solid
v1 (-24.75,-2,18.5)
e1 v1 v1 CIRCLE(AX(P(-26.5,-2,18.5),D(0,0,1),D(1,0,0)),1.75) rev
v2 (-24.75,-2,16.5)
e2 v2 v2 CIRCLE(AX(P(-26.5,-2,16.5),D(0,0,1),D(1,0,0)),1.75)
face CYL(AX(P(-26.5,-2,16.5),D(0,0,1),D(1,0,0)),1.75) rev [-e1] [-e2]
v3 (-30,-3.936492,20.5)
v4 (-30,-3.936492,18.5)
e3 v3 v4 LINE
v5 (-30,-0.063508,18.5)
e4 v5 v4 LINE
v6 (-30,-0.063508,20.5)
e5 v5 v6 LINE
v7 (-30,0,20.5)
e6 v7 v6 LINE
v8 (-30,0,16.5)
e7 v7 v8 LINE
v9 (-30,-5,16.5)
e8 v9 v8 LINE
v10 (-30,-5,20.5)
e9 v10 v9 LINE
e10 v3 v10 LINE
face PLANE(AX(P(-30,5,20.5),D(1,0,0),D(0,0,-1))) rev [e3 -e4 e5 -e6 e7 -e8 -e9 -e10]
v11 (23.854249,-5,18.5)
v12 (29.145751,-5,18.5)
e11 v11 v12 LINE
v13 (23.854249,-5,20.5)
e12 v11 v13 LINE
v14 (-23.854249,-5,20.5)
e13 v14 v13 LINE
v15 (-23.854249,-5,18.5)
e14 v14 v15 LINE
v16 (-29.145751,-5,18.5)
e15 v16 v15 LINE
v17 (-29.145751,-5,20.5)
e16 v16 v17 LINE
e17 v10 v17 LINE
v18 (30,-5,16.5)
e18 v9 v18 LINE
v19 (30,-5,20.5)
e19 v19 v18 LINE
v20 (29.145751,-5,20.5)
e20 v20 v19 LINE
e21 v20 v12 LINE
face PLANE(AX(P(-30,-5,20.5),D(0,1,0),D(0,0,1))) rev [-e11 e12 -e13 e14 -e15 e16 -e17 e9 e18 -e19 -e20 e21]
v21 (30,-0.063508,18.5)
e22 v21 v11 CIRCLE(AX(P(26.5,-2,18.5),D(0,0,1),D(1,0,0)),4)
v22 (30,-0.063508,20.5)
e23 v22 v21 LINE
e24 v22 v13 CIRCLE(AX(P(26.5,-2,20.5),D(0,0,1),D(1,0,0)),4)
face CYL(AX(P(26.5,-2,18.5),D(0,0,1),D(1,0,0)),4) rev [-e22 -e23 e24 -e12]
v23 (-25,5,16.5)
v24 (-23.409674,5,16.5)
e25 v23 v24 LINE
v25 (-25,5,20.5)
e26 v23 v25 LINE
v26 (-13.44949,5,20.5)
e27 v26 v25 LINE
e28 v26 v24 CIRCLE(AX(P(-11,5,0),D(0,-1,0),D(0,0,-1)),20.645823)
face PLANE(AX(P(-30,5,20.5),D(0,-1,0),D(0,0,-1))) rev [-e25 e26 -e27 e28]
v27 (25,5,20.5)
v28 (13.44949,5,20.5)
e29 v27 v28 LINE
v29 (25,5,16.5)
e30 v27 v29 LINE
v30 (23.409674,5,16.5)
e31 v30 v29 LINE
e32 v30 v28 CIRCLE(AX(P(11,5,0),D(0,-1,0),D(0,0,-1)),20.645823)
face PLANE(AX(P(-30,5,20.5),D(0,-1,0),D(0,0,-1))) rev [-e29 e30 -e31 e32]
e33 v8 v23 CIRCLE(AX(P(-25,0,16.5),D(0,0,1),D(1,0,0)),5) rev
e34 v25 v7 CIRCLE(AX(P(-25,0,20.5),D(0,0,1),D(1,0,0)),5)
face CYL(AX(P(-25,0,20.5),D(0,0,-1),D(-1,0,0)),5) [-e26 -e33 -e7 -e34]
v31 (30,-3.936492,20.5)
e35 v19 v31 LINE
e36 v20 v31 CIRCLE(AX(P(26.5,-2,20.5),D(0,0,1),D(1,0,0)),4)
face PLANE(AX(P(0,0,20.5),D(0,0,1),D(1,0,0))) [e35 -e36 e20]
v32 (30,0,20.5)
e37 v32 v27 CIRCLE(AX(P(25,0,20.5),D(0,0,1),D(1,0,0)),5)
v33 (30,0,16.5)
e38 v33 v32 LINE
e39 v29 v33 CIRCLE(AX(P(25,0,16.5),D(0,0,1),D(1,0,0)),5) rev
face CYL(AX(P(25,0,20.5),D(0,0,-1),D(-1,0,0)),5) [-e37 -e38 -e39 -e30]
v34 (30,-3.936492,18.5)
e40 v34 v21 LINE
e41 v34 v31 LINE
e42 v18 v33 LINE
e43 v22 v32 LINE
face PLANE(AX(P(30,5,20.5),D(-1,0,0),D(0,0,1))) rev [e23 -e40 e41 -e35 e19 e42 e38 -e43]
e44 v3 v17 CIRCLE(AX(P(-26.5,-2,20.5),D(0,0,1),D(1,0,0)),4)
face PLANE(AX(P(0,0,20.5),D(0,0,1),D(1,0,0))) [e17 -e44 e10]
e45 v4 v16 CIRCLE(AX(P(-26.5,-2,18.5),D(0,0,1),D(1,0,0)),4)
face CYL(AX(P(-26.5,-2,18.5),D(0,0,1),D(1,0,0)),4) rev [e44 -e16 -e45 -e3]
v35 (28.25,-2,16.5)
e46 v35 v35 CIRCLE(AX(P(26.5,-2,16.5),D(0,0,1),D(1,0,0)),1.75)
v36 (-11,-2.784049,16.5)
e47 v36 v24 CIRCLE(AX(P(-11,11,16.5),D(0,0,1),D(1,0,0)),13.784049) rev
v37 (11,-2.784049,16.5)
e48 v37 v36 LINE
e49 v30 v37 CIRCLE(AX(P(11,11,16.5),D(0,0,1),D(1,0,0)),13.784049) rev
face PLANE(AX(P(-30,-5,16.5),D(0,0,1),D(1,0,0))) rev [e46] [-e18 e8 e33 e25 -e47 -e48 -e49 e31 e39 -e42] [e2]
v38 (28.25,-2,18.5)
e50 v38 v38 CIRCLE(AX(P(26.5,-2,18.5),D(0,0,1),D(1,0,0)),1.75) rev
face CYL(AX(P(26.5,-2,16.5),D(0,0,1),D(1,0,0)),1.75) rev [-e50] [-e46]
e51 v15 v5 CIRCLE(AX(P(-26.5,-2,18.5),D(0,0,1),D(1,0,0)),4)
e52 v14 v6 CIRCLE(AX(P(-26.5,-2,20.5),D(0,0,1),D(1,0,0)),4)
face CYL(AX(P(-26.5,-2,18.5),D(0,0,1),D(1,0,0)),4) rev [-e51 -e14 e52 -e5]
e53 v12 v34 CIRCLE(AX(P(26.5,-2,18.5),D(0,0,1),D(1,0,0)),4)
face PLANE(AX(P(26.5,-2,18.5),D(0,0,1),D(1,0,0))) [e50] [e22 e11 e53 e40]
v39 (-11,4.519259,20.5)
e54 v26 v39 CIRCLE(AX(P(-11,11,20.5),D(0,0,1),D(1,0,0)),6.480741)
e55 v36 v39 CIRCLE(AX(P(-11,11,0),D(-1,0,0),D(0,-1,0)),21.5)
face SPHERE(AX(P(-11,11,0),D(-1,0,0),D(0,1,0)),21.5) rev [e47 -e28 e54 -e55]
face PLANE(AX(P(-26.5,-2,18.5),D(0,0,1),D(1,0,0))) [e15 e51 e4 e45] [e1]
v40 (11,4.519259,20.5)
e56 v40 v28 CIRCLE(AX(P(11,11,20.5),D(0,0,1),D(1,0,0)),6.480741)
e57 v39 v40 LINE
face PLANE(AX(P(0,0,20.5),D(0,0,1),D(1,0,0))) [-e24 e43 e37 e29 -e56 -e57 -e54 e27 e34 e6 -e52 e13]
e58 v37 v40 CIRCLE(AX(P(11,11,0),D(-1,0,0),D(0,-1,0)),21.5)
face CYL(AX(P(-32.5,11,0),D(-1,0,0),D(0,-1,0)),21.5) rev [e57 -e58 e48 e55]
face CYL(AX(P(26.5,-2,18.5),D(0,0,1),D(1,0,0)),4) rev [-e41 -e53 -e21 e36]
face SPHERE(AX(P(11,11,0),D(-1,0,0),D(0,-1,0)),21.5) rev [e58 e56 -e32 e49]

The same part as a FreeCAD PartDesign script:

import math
import FreeCAD as App
import Part
import Sketcher

V = App.Vector


def edges_at(feature, points):
    """Names of the edges that pass closest to the given points."""
    edges = feature.Shape.Edges
    near = lambda p: min(range(len(edges)), key=lambda i: edges[i].distToShape(Part.Vertex(*p))[0])
    return sorted({f"Edge{near(p) + 1}" for p in points})


def add_polygon(sketch, points):
    """Adds a closed chain of lines whose ends are joined by coincident constraints."""
    first, n = sketch.GeometryCount, len(points)
    for a, b in zip(points, points[1:] + points[:1]):
        sketch.addGeometry(Part.LineSegment(App.Vector(*a, 0), App.Vector(*b, 0)), False)
    for i in range(n):
        sketch.addConstraint(Sketcher.Constraint("Coincident", first + i, 2, first + (i + 1) % n, 1))

doc = App.newDocument("Part")
params = doc.addObject("Spreadsheet::Sheet", "Params")
for row, (alias, value) in enumerate([
    ("sketch1_width", "60 mm"),
    ("sketch1_height", "10 mm"),
    ("pad1_length", "41 mm"),
    ("sketch2_radius", "21.5 mm"),
    ("sketch2_width", "65 mm"),
    ("groove_angle", "360 deg"),
    ("sketch3_width", "60 mm"),
    ("sketch3_height", "37 mm"),
    ("fillet_radius", "5 mm"),
    ("sketch4_diameter", "3.5 mm"),
    ("sketch5_diameter", "8 mm"),
    ("pocket3_length", "2 mm"),
], start=1):
    params.set(f"A{row}", alias)
    params.set(f"B{row}", "=" + value)
    params.setAlias(f"B{row}", alias)

body = doc.addObject("PartDesign::Body", "Body")

# Sketch on XY plane
sketch1 = body.newObject("Sketcher::SketchObject", "Sketch")
sketch1.AttachmentSupport = (doc.getObject("XY_Plane"), [""])
sketch1.MapMode = "FlatFace"
add_polygon(sketch1, [(-30, 5), (-30, -5), (30, -5), (30, 5)])  # lines 0-3
sketch1.addConstraint(Sketcher.Constraint("Vertical", 0))
sketch1.addConstraint(Sketcher.Constraint("Horizontal", 1))
sketch1.addConstraint(Sketcher.Constraint("Vertical", 2))
sketch1.addConstraint(Sketcher.Constraint("Horizontal", 3))
sketch1.addConstraint(Sketcher.Constraint("Symmetric", 0, 2, 2, 2, -1, 1))
sketch1.addConstraint(Sketcher.Constraint("DistanceX", 1, 1, 1, 2, 60.0))
sketch1.addConstraint(Sketcher.Constraint("DistanceY", 0, 2, 0, 1, 10.0))
sketch1.setExpression("Constraints[9]", "Params.sketch1_width")
sketch1.setExpression("Constraints[10]", "Params.sketch1_height")
pad1 = body.newObject("PartDesign::Pad", "Pad")
pad1.Profile = sketch1
pad1.setExpression("Length", "Params.pad1_length")
pad1.Midplane = True

# Sketch on XY plane
sketch2 = body.newObject("Sketcher::SketchObject", "Sketch001")
sketch2.AttachmentSupport = (doc.getObject("XY_Plane"), [""])
sketch2.MapMode = "FlatFace"
sketch2.addGeometry(Part.LineSegment(V(32, 11, 0), V(-32, 11, 0)), False)
sketch2.addGeometry(Part.ArcOfCircle(Part.Circle(V(-11, 11, 0), V(0, 0, 1), 21), math.radians(180), math.radians(270)), False)
sketch2.addGeometry(Part.LineSegment(V(-11, -10, 0), V(11, -10, 0)), False)
sketch2.addGeometry(Part.ArcOfCircle(Part.Circle(V(11, 11, 0), V(0, 0, 1), 21), math.radians(-90), math.radians(0)), False)
sketch2.addGeometry(Part.LineSegment(V(-32, 11, 0), V(32, 11, 0)), True)  # axis
sketch2.addConstraint(Sketcher.Constraint("Coincident", 0, 2, 1, 1))
sketch2.addConstraint(Sketcher.Constraint("Tangent", 1, 2, 2, 1))
sketch2.addConstraint(Sketcher.Constraint("Tangent", 2, 2, 3, 1))
sketch2.addConstraint(Sketcher.Constraint("Coincident", 3, 2, 0, 1))
sketch2.addConstraint(Sketcher.Constraint("Horizontal", 0))
sketch2.addConstraint(Sketcher.Constraint("Horizontal", 2))
sketch2.addConstraint(Sketcher.Constraint("Horizontal", 4))
sketch2.addConstraint(Sketcher.Constraint("Coincident", 4, 1, 0, 2))
sketch2.addConstraint(Sketcher.Constraint("Equal", 1, 3))
sketch2.addConstraint(Sketcher.Constraint("Horizontal", 3, 3, 0, 2))
sketch2.addConstraint(Sketcher.Constraint("Equal", 0, 4))
sketch2.addConstraint(Sketcher.Constraint("Radius", 1, 21.5))
sketch2.addConstraint(Sketcher.Constraint("DistanceX", 0, 2, 0, 1, 65.0))
sketch2.addConstraint(Sketcher.Constraint("DistanceX", 1, 3, -1, 1, 11.0))
sketch2.addConstraint(Sketcher.Constraint("DistanceY", -1, 1, 1, 3, 11.0))
sketch2.setExpression("Constraints[11]", "Params.sketch2_radius")
sketch2.setExpression("Constraints[12]", "Params.sketch2_width")
groove = body.newObject("PartDesign::Groove", "Groove")
groove.Profile = sketch2
groove.ReferenceAxis = (sketch2, ["Axis0"])
groove.setExpression("Angle", "Params.groove_angle")

# Sketch on XZ plane
sketch3 = body.newObject("Sketcher::SketchObject", "Sketch002")
sketch3.AttachmentSupport = (doc.getObject("XZ_Plane"), [""])
sketch3.MapMode = "FlatFace"
sketch3.AttachmentOffset = App.Placement(V(0, 0, -5), App.Rotation())
add_polygon(sketch3, [(-30, -20), (-30, 16), (30, 16), (30, -20)])  # lines 0-3
sketch3.addConstraint(Sketcher.Constraint("Vertical", 0))
sketch3.addConstraint(Sketcher.Constraint("Horizontal", 1))
sketch3.addConstraint(Sketcher.Constraint("Vertical", 2))
sketch3.addConstraint(Sketcher.Constraint("Horizontal", 3))
sketch3.addConstraint(Sketcher.Constraint("DistanceX", 1, 1, 1, 2, 60.0))
sketch3.addConstraint(Sketcher.Constraint("DistanceY", 0, 1, 0, 2, 37.0))
sketch3.addConstraint(Sketcher.Constraint("DistanceX", 0, 2, -1, 1, 30.0))
sketch3.addConstraint(Sketcher.Constraint("DistanceY", -1, 1, 0, 2, 16.5))
sketch3.setExpression("Constraints[8]", "Params.sketch3_width")
sketch3.setExpression("Constraints[9]", "Params.sketch3_height")
pocket1 = body.newObject("PartDesign::Pocket", "Pocket")
pocket1.Profile = sketch3
pocket1.Type = "ThroughAll"
pocket1.Reversed = True
doc.recompute()

fillet = body.newObject("PartDesign::Fillet", "Fillet")
fillet.Base = (pocket1, edges_at(pocket1, [(-30, 5, 18.5), (30, 5, 18.5)]))
fillet.setExpression("Radius", "Params.fillet_radius")

# Sketch on XY plane
sketch4 = body.newObject("Sketcher::SketchObject", "Sketch003")
sketch4.AttachmentSupport = (doc.getObject("XY_Plane"), [""])
sketch4.MapMode = "FlatFace"
sketch4.AttachmentOffset = App.Placement(V(0, 0, 20.5), App.Rotation())
sketch4.addGeometry(Part.Circle(V(-26.5, -2, 0), V(0, 0, 1), 1.8), False)
sketch4.addGeometry(Part.Circle(V(26.5, -2, 0), V(0, 0, 1), 1.8), False)
sketch4.addConstraint(Sketcher.Constraint("Equal", 0, 1))
sketch4.addConstraint(Sketcher.Constraint("Symmetric", 0, 3, 1, 3, -2))
sketch4.addConstraint(Sketcher.Constraint("Diameter", 0, 3.5))
sketch4.addConstraint(Sketcher.Constraint("DistanceY", 0, 3, -1, 1, 2.0))
sketch4.addConstraint(Sketcher.Constraint("DistanceX", 0, 3, 1, 3, 53.0))
sketch4.setExpression("Constraints[2]", "Params.sketch4_diameter")
pocket2 = body.newObject("PartDesign::Pocket", "Pocket001")
pocket2.Profile = sketch4
pocket2.Type = "ThroughAll"

# Sketch on XY plane
sketch5 = body.newObject("Sketcher::SketchObject", "Sketch004")
sketch5.AttachmentSupport = (doc.getObject("XY_Plane"), [""])
sketch5.MapMode = "FlatFace"
sketch5.AttachmentOffset = App.Placement(V(0, 0, 20.5), App.Rotation())
sketch5.addGeometry(Part.Circle(V(-26.5, -2, 0), V(0, 0, 1), 4), False)
sketch5.addGeometry(Part.Circle(V(26.5, -2, 0), V(0, 0, 1), 4), False)
sketch5.addConstraint(Sketcher.Constraint("Equal", 0, 1))
sketch5.addConstraint(Sketcher.Constraint("Symmetric", 0, 3, 1, 3, -2))
sketch5.addConstraint(Sketcher.Constraint("Diameter", 0, 8.0))
sketch5.addConstraint(Sketcher.Constraint("DistanceY", 0, 3, -1, 1, 2.0))
sketch5.addConstraint(Sketcher.Constraint("DistanceX", 0, 3, 1, 3, 53.0))
sketch5.setExpression("Constraints[2]", "Params.sketch5_diameter")
pocket3 = body.newObject("PartDesign::Pocket", "Pocket002")
pocket3.Profile = sketch5
pocket3.setExpression("Length", "Params.pocket3_length")

doc.recompute()
